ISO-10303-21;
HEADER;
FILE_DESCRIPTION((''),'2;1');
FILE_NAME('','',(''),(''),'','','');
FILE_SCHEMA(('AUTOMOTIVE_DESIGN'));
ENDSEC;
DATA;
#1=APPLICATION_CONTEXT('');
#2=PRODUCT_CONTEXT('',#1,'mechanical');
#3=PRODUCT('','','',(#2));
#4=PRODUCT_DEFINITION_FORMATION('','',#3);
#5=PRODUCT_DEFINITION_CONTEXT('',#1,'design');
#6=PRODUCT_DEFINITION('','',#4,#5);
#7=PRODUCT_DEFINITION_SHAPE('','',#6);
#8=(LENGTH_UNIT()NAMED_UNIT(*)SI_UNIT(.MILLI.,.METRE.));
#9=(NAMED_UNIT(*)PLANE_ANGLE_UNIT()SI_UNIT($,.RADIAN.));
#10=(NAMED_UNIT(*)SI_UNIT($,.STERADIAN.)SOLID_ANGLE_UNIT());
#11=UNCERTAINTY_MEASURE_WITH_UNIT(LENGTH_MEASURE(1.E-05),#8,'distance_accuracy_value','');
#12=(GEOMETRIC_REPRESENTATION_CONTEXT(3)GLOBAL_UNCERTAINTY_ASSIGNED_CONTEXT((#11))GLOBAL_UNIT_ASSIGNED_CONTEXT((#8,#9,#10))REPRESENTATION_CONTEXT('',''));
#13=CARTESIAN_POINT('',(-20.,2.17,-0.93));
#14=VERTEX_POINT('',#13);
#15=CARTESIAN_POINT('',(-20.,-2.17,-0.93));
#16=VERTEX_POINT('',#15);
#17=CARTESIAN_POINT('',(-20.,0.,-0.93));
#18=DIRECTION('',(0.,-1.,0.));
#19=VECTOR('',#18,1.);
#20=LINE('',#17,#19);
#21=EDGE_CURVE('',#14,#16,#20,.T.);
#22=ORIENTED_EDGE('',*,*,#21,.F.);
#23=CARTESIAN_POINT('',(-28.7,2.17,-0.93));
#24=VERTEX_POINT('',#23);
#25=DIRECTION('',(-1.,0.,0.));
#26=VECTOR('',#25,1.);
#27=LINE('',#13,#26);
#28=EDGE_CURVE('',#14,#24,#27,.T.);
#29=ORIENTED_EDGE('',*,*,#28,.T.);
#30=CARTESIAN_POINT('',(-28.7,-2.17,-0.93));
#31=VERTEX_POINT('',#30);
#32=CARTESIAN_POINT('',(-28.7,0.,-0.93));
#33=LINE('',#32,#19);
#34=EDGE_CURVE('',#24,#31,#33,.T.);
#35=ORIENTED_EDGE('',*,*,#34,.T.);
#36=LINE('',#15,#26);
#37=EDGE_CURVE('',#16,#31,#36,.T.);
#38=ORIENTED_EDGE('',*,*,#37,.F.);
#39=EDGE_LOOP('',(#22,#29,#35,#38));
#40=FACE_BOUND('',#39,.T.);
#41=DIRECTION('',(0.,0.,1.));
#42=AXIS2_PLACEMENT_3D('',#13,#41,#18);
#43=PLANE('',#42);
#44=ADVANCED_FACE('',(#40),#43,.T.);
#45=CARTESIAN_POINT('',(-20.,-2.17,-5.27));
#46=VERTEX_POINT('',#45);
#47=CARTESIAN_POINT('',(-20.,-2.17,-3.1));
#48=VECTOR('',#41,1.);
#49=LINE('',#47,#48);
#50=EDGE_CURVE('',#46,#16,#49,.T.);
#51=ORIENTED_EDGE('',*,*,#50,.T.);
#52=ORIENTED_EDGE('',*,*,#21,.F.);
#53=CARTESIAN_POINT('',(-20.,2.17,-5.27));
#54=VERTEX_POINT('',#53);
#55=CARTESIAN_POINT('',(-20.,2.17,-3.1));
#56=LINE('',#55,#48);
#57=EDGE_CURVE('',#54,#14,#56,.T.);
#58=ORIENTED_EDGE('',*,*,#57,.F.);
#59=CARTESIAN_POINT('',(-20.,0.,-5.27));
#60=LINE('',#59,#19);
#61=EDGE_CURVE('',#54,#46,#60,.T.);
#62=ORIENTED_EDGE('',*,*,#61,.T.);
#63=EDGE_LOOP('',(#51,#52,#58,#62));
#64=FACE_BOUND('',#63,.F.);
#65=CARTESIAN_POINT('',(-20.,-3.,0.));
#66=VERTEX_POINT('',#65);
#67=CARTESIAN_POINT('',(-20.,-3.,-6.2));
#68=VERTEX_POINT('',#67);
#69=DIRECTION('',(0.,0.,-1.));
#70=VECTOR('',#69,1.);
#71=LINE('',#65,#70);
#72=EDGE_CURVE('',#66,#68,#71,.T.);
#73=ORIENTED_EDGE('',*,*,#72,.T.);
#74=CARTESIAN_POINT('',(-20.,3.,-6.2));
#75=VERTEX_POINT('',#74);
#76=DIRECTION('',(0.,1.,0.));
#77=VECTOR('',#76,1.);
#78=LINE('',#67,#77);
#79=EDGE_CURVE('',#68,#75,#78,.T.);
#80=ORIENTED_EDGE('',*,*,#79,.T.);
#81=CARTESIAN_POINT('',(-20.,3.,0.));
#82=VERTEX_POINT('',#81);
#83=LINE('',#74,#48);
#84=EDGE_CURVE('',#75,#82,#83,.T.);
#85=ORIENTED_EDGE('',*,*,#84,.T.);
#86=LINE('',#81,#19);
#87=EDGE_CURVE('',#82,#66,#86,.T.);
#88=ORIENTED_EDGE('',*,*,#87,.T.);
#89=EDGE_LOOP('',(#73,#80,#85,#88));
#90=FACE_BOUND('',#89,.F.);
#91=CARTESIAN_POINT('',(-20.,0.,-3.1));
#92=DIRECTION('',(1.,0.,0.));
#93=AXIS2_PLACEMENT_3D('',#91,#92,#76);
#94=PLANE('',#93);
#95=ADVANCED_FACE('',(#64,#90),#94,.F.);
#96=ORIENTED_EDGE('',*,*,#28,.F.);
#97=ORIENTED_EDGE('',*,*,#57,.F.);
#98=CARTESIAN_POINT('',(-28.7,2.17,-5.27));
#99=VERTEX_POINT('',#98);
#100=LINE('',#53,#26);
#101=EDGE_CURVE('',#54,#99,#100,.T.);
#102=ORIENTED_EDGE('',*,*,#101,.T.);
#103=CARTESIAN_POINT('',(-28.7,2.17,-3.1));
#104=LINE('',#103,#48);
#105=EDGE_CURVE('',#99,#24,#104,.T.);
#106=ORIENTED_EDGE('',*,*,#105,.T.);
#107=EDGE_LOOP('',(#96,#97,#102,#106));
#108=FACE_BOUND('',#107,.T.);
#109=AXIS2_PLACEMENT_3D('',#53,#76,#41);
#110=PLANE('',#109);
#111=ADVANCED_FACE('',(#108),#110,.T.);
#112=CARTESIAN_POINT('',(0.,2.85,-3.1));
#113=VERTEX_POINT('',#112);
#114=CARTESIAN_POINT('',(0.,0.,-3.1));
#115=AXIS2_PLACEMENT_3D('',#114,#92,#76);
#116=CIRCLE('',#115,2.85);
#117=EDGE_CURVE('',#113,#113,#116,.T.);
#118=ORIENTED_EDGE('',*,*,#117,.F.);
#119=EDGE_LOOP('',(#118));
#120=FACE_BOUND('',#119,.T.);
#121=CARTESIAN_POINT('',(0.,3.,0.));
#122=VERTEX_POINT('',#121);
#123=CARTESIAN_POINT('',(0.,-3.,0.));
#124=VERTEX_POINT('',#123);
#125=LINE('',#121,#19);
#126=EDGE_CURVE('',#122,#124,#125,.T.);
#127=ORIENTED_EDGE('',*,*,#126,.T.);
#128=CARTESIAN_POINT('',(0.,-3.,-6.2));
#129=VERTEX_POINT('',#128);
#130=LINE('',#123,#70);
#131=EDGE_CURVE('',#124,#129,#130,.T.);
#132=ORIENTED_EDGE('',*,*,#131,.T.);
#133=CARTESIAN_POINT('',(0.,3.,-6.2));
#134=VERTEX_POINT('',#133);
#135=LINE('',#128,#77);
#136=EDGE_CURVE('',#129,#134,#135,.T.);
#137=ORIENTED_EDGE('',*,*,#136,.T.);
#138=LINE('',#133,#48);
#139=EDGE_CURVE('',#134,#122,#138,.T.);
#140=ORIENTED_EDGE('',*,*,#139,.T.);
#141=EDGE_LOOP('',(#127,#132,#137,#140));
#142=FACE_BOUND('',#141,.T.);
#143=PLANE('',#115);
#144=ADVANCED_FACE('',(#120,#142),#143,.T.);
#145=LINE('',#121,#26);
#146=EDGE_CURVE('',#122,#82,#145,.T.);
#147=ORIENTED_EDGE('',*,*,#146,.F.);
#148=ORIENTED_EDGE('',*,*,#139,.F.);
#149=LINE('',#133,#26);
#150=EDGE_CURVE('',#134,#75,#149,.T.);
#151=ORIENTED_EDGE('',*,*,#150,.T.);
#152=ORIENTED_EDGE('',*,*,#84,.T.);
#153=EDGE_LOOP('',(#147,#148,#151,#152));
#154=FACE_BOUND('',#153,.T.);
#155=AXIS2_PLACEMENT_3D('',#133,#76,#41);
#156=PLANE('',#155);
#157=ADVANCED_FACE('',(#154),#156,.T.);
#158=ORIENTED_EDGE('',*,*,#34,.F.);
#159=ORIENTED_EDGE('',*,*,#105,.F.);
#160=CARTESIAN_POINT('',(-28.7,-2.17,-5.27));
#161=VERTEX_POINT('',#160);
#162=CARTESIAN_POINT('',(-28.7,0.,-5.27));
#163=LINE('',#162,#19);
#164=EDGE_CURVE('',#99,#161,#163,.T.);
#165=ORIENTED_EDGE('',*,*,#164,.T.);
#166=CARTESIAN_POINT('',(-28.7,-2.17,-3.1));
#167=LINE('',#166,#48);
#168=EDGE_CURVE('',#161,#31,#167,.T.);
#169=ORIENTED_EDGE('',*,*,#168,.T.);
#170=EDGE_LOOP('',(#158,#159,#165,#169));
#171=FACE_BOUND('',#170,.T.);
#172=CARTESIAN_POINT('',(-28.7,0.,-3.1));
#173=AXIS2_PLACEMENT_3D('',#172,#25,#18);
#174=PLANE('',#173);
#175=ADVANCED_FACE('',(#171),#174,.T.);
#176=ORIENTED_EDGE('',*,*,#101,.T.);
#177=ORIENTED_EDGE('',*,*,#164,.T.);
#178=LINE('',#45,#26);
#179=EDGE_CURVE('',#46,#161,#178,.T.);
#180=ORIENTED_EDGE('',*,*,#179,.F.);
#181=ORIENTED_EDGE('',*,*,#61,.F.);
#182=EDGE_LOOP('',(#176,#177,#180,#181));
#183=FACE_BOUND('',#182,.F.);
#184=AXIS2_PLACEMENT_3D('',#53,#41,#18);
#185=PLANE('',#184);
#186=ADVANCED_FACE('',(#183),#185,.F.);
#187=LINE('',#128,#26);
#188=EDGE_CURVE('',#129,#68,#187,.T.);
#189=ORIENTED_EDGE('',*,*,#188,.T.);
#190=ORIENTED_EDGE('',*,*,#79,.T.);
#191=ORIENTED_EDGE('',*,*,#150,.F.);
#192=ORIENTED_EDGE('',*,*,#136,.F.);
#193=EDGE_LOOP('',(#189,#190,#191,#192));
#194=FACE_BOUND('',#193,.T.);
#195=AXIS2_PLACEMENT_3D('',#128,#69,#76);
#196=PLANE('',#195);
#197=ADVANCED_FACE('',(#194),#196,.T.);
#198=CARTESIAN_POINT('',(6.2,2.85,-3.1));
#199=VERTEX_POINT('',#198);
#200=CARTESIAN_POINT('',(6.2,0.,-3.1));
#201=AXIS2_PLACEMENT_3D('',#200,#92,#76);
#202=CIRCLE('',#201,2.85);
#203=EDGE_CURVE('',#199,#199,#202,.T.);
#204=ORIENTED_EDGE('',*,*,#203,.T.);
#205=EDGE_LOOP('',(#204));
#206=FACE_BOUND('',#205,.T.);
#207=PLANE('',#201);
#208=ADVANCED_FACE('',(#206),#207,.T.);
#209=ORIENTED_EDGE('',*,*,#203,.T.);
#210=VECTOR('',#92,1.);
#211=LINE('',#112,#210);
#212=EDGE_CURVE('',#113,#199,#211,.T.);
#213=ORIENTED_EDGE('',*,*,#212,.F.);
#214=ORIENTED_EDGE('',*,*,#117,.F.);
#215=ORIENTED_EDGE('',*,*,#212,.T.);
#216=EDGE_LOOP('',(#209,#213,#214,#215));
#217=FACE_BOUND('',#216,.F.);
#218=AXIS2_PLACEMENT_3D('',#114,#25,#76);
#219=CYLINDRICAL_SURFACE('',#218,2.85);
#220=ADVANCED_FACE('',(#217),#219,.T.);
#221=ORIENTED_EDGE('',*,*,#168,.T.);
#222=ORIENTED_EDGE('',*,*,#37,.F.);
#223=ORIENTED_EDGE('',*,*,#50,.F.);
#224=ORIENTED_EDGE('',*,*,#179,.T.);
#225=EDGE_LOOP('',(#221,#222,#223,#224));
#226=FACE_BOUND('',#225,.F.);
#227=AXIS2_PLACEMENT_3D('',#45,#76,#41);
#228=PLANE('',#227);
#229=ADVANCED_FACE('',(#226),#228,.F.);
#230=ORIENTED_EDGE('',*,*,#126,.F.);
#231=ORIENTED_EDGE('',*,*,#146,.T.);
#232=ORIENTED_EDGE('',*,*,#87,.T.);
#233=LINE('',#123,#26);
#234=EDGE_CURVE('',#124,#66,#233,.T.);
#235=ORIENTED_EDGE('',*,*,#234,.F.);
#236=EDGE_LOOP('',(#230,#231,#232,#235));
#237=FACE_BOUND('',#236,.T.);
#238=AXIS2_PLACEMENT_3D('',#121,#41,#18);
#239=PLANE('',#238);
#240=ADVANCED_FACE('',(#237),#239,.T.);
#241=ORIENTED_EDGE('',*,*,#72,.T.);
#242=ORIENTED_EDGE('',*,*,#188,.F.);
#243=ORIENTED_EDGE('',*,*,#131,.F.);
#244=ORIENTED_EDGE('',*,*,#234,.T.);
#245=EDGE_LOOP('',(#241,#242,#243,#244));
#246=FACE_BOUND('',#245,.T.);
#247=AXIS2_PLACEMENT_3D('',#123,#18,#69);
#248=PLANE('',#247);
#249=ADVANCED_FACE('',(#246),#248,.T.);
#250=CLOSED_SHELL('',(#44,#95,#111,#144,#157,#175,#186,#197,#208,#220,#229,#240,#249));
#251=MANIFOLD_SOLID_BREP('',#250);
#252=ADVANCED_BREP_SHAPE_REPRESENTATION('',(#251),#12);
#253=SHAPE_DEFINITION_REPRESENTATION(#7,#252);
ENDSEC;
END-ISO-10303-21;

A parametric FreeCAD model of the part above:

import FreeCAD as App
import Part
import Sketcher
from FreeCAD import Vector
Q = App.Units.Quantity


def add_polygon(sketch, points):
    """Adds a closed chain of lines whose ends are joined by coincident constraints."""
    first, n = sketch.GeometryCount, len(points)
    for a, b in zip(points, points[1:] + points[:1]):
        sketch.addGeometry(Part.LineSegment(App.Vector(*a, 0), App.Vector(*b, 0)), False)
    for i in range(n):
        sketch.addConstraint(Sketcher.Constraint("Coincident", first + i, 2, first + (i + 1) % n, 1))

doc = App.newDocument("Part")
body = doc.addObject("PartDesign::Body", "Body")

# Sketch on YZ plane
sketch1 = body.newObject("Sketcher::SketchObject", "Sketch")
sketch1.AttachmentSupport = (doc.getObject("YZ_Plane"), [""])
sketch1.MapMode = "FlatFace"
add_polygon(sketch1, [(-3, 0), (-3, -6), (3, -6), (3, 0)])  # lines 0-3
sketch1.addConstraint([
    Sketcher.Constraint("Vertical", 0),
    Sketcher.Constraint("Horizontal", 1),
    Sketcher.Constraint("Vertical", 2),
    Sketcher.Constraint("Horizontal", 3),
    Sketcher.Constraint("Symmetric", 2, 2, 3, 2, -1, 1),
    Sketcher.Constraint("DistanceX", 1, 1, 1, 2, Q("6 mm")),
    Sketcher.Constraint("DistanceY", 0, 2, 0, 1, Q("6.2 mm")),
])
pad1 = body.newObject("PartDesign::Pad", "Pad")
pad1.Profile = sketch1
pad1.Length = 20
pad1.Reversed = True

# Sketch on YZ plane
sketch2 = body.newObject("Sketcher::SketchObject", "Sketch001")
sketch2.AttachmentSupport = (doc.getObject("YZ_Plane"), [""])
sketch2.MapMode = "FlatFace"
sketch2.addGeometry(Part.Circle(Vector(0, -3.1, 0), Vector(0, 0, 1), 2.9), False)
sketch2.addConstraint([
    Sketcher.Constraint("PointOnObject", 0, 3, -2),
    Sketcher.Constraint("Diameter", 0, Q("5.7 mm")),
    Sketcher.Constraint("DistanceY", 0, 3, -1, 1, Q("3.1 mm")),
])
pad2 = body.newObject("PartDesign::Pad", "Pad001")
pad2.Profile = sketch2
pad2.Length = 6.2

# Sketch on YZ plane
sketch3 = body.newObject("Sketcher::SketchObject", "Sketch002")
sketch3.AttachmentSupport = (doc.getObject("YZ_Plane"), [""])
sketch3.MapMode = "FlatFace"
sketch3.AttachmentOffset = App.Placement(Vector(0, 0, -20), App.Rotation())
add_polygon(sketch3, [(2.2, -0.9), (2.2, -5.3), (-2.2, -5.3), (-2.2, -0.9)])  # lines 0-3
sketch3.addConstraint([
    Sketcher.Constraint("Vertical", 0),
    Sketcher.Constraint("Horizontal", 1),
    Sketcher.Constraint("Vertical", 2),
    Sketcher.Constraint("Horizontal", 3),
    Sketcher.Constraint("Equal", 3, 0),
    Sketcher.Constraint("DistanceX", 1, 2, 1, 1, Q("4.34 mm")),
    Sketcher.Constraint("DistanceX", -1, 1, 0, 2, Q("2.17 mm")),
    Sketcher.Constraint("DistanceY", 0, 2, -1, 1, Q("5.27 mm")),
])
pad3 = body.newObject("PartDesign::Pad", "Pad002")
pad3.Profile = sketch3
pad3.Length = 8.7
pad3.Reversed = True

doc.recompute()
